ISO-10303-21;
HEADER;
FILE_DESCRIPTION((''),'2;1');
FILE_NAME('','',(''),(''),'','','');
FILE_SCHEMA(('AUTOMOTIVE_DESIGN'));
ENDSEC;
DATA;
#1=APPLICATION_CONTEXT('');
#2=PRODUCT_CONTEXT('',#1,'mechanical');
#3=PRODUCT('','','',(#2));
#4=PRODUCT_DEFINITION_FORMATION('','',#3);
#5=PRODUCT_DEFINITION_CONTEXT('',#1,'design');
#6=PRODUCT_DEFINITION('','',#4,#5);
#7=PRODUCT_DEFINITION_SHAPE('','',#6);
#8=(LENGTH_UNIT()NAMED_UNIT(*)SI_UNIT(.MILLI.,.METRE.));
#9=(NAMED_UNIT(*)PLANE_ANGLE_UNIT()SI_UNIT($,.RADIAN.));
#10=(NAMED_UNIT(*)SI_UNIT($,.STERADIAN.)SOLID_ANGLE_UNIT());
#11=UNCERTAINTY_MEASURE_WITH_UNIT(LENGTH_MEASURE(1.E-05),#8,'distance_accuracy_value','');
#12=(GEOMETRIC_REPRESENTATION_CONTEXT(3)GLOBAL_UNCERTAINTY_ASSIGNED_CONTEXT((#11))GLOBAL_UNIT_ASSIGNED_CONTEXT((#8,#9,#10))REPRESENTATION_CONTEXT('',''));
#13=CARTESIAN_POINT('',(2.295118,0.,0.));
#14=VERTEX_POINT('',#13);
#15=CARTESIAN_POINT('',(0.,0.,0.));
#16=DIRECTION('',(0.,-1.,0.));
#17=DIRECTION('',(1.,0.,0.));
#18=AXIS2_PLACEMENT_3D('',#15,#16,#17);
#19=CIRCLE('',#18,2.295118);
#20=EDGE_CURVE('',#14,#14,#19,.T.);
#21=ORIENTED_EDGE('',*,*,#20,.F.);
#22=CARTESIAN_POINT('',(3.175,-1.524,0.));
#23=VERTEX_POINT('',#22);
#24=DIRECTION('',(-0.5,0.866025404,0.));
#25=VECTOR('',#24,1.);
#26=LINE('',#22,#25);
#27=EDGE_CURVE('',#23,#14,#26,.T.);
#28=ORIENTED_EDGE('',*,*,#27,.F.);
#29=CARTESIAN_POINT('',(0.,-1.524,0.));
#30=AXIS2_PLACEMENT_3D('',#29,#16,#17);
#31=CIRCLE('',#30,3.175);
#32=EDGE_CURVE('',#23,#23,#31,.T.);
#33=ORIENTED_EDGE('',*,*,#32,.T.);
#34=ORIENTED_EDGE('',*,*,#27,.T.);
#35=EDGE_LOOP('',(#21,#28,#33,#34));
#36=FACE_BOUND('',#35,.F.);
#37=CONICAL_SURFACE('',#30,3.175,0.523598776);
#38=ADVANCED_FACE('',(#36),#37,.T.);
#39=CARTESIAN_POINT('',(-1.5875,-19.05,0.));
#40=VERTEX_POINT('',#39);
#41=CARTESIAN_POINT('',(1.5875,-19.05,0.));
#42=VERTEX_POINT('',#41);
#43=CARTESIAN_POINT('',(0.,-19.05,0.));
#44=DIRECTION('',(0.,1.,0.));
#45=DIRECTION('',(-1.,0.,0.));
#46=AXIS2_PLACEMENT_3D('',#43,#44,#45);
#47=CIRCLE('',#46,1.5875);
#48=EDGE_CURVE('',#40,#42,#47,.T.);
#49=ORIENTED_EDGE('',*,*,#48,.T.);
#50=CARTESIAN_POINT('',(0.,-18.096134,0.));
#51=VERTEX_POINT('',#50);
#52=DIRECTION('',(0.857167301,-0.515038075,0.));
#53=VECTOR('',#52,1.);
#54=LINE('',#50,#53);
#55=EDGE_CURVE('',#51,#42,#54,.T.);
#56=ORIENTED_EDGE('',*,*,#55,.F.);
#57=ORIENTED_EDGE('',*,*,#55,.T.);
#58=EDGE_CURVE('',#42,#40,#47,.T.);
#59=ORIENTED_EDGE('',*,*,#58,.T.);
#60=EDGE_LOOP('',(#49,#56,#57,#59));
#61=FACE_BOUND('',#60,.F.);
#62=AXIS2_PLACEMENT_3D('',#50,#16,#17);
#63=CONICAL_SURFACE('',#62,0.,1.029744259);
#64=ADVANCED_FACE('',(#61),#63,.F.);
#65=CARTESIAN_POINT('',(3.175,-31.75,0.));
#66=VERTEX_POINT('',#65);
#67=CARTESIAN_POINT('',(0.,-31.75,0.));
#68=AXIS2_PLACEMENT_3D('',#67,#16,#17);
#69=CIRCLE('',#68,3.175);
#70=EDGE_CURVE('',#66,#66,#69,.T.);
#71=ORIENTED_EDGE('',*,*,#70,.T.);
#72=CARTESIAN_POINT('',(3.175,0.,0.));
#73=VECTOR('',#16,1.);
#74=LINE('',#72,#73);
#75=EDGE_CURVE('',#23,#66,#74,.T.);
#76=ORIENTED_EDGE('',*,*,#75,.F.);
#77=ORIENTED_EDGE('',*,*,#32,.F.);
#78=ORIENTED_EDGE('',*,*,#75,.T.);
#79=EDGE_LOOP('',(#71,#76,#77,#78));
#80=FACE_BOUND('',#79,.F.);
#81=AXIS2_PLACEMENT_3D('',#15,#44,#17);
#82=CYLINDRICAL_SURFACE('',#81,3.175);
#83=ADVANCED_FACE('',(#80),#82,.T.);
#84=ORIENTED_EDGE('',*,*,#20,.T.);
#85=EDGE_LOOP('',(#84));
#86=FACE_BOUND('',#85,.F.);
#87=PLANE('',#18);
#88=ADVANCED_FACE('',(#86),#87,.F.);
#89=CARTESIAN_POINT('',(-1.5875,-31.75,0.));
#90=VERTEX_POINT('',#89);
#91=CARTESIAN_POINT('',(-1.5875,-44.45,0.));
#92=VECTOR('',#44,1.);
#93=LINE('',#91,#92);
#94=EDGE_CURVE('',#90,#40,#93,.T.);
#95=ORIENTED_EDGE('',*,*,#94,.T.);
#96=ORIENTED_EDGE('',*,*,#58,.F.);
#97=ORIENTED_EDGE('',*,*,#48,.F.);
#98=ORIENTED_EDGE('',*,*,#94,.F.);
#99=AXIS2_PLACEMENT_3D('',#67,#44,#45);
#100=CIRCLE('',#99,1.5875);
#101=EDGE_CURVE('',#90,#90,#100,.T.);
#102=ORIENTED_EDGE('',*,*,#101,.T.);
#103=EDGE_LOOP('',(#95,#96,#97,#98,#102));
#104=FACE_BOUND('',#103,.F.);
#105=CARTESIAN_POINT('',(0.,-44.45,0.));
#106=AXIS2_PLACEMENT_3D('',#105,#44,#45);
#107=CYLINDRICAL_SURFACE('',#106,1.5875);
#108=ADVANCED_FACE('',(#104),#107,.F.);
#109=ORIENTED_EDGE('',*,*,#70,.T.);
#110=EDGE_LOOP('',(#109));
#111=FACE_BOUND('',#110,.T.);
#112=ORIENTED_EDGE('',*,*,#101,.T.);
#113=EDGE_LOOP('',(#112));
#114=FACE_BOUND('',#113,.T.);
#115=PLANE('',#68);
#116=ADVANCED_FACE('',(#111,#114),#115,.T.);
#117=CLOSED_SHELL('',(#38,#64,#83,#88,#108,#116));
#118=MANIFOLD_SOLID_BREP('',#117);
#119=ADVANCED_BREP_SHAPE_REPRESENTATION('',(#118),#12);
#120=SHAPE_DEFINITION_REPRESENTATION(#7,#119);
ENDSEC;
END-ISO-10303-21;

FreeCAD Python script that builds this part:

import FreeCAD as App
import Part
import Sketcher

V = App.Vector
Q = App.Units.Quantity


def edges_at(feature, points):
    """Names of the edges that pass closest to the given points."""
    edges = feature.Shape.Edges
    near = lambda p: min(range(len(edges)), key=lambda i: edges[i].distToShape(Part.Vertex(*p))[0])
    return sorted({f"Edge{near(p) + 1}" for p in points})

doc = App.newDocument("Part")
body = doc.addObject("PartDesign::Body", "Body")

sketch1 = body.newObject("Sketcher::SketchObject", "Sketch")
sketch1.AttachmentSupport = (doc.getObject("XZ_Plane"), [""])
sketch1.MapMode = "FlatFace"
sketch1.addGeometry(Part.Circle(V(0, 0, 0), V(0, 0, 1), 3.2), False)
sketch1.addConstraint(Sketcher.Constraint("Coincident", 0, 3, -1, 1))
sketch1.addConstraint(Sketcher.Constraint("Diameter", 0, Q("0.25 in")))
pad1 = body.newObject("PartDesign::Pad", "Pad")
pad1.Profile = sketch1
pad1.Length = Q("1.25 in")

sketch2 = body.newObject("Sketcher::SketchObject", "Sketch001")
sketch2.AttachmentSupport = (doc.getObject("XZ_Plane"), [""])
sketch2.MapMode = "FlatFace"
sketch2.AttachmentOffset = App.Placement(V(0, 0, 1.25 * 25.4), App.Rotation())
sketch2.addGeometry(Part.Circle(V(0, 0, 0), V(0, 0, 1), 1.6), False)
sketch2.addConstraint(Sketcher.Constraint("Coincident", 0, 3, -1, 1))
sketch2.addConstraint(Sketcher.Constraint("Diameter", 0, Q("0.125 in")))
doc.recompute()
hole = body.newObject("PartDesign::Hole", "Hole")
hole.Profile = sketch2
hole.ThreadType = "None"
hole.Diameter = Q("0.125 in")
hole.DepthType = "Dimension"
hole.Depth = Q("0.5 in")
hole.DrillPoint = "Angled"
hole.DrillPointAngle = 118
doc.recompute()

chamfer = body.newObject("PartDesign::Chamfer", "Chamfer")
chamfer.Base = (hole, edges_at(hole, [(-3.175, 0, 0)]))
chamfer.ChamferType = "Two distances"
chamfer.Size = Q("0.06 in")
chamfer.Size2 = 0.879882

doc.recompute()
